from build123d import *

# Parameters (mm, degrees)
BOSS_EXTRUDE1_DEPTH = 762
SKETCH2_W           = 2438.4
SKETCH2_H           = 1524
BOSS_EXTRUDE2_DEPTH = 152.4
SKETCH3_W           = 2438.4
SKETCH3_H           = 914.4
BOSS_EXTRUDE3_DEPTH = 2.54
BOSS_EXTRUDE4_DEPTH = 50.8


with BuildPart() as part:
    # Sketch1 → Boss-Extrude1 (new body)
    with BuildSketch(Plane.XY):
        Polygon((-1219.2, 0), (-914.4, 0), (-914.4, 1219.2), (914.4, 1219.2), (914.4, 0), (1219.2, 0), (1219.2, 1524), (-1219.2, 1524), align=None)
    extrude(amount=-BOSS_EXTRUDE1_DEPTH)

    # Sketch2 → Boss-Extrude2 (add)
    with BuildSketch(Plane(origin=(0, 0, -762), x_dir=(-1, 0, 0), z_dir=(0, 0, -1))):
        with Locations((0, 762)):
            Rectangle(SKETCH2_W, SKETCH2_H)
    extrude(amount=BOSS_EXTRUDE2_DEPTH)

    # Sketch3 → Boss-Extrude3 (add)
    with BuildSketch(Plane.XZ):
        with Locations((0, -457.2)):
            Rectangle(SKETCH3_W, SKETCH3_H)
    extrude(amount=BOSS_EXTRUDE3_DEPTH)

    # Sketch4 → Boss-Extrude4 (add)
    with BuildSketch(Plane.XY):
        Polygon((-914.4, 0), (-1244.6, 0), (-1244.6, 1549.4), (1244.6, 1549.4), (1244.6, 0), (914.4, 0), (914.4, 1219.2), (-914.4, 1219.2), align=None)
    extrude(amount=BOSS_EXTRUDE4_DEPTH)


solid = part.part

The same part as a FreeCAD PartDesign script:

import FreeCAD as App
import Part
import Sketcher
Q = App.Units.Quantity

doc = App.newDocument("Part")
body = doc.addObject("PartDesign::Body", "Body")

# Sketch on XY plane
sketch1 = doc.addObject("Sketcher::SketchObject", "Sketch")
body.addObject(sketch1)
sketch1.AttachmentSupport = (doc.XY_Plane, [""])
sketch1.MapMode = "FlatFace"
sketch1.addGeometry(Part.LineSegment(App.Vector(-1219.2, 0, 0), App.Vector(-914.4, 0, 0)), False)
sketch1.addGeometry(Part.LineSegment(App.Vector(-914.4, 0, 0), App.Vector(-914.4, 1219.2, 0)), False)
sketch1.addGeometry(Part.LineSegment(App.Vector(-914.4, 1219.2, 0), App.Vector(914.4, 1219.2, 0)), False)
sketch1.addGeometry(Part.LineSegment(App.Vector(914.4, 1219.2, 0), App.Vector(914.4, 0, 0)), False)
sketch1.addGeometry(Part.LineSegment(App.Vector(914.4, 0, 0), App.Vector(1219.2, 0, 0)), False)
sketch1.addGeometry(Part.LineSegment(App.Vector(1219.2, 0, 0), App.Vector(1219.2, 1524, 0)), False)
sketch1.addGeometry(Part.LineSegment(App.Vector(1219.2, 1524, 0), App.Vector(-1219.2, 1524, 0)), False)
sketch1.addGeometry(Part.LineSegment(App.Vector(-1219.2, 1524, 0), App.Vector(-1219.2, 0, 0)), False)
sketch1.addConstraint(Sketcher.Constraint("Coincident", 0, 2, 1, 1))
sketch1.addConstraint(Sketcher.Constraint("Coincident", 1, 2, 2, 1))
sketch1.addConstraint(Sketcher.Constraint("Coincident", 2, 2, 3, 1))
sketch1.addConstraint(Sketcher.Constraint("Coincident", 3, 2, 4, 1))
sketch1.addConstraint(Sketcher.Constraint("Coincident", 4, 2, 5, 1))
sketch1.addConstraint(Sketcher.Constraint("Coincident", 5, 2, 6, 1))
sketch1.addConstraint(Sketcher.Constraint("Coincident", 6, 2, 7, 1))
sketch1.addConstraint(Sketcher.Constraint("Coincident", 7, 2, 0, 1))
sketch1.addConstraint(Sketcher.Constraint("Horizontal", 0))
sketch1.addConstraint(Sketcher.Constraint("Vertical", 1))
sketch1.addConstraint(Sketcher.Constraint("Horizontal", 2))
sketch1.addConstraint(Sketcher.Constraint("Vertical", 3))
sketch1.addConstraint(Sketcher.Constraint("Horizontal", 4))
sketch1.addConstraint(Sketcher.Constraint("Vertical", 5))
sketch1.addConstraint(Sketcher.Constraint("Horizontal", 6))
sketch1.addConstraint(Sketcher.Constraint("Vertical", 7))
sketch1.addConstraint(Sketcher.Constraint("Symmetric", 0, 2, 3, 2, -1, 1))
sketch1.addConstraint(Sketcher.Constraint("Symmetric", 4, 2, 7, 2, -2))
sketch1.addConstraint(Sketcher.Constraint("DistanceX", 0, 1, 0, 2, Q("12 in")))
sketch1.addConstraint(Sketcher.Constraint("DistanceX", 2, 1, 2, 2, Q("72 in")))
sketch1.addConstraint(Sketcher.Constraint("DistanceY", 1, 1, 1, 2, Q("48 in")))
sketch1.addConstraint(Sketcher.Constraint("DistanceY", 5, 1, 5, 2, Q("60 in")))
pad1 = doc.addObject("PartDesign::Pad", "Pad")
body.addObject(pad1)
pad1.Profile = sketch1
pad1.Length = Q("30 in")
pad1.Reversed = True

# Sketch on XY plane
sketch2 = doc.addObject("Sketcher::SketchObject", "Sketch001")
body.addObject(sketch2)
sketch2.AttachmentSupport = (doc.XY_Plane, [""])
sketch2.MapMode = "FlatFace"
sketch2.AttachmentOffset = App.Placement(App.Vector(0, 0, -30 * 25.4), App.Rotation())
sketch2.addGeometry(Part.LineSegment(App.Vector(1219.2, 1524, 0), App.Vector(1219.2, 0, 0)), False)
sketch2.addGeometry(Part.LineSegment(App.Vector(1219.2, 0, 0), App.Vector(-1219.2, 0, 0)), False)
sketch2.addGeometry(Part.LineSegment(App.Vector(-1219.2, 0, 0), App.Vector(-1219.2, 1524, 0)), False)
sketch2.addGeometry(Part.LineSegment(App.Vector(-1219.2, 1524, 0), App.Vector(1219.2, 1524, 0)), False)
sketch2.addConstraint(Sketcher.Constraint("Coincident", 0, 2, 1, 1))
sketch2.addConstraint(Sketcher.Constraint("Coincident", 1, 2, 2, 1))
sketch2.addConstraint(Sketcher.Constraint("Coincident", 2, 2, 3, 1))
sketch2.addConstraint(Sketcher.Constraint("Coincident", 3, 2, 0, 1))
sketch2.addConstraint(Sketcher.Constraint("Vertical", 0))
sketch2.addConstraint(Sketcher.Constraint("Horizontal", 1))
sketch2.addConstraint(Sketcher.Constraint("Vertical", 2))
sketch2.addConstraint(Sketcher.Constraint("Horizontal", 3))
sketch2.addConstraint(Sketcher.Constraint("Symmetric", 0, 2, 1, 2, -1, 1))
sketch2.addConstraint(Sketcher.Constraint("DistanceX", 1, 2, 1, 1, Q("96 in")))
sketch2.addConstraint(Sketcher.Constraint("DistanceY", 0, 2, 0, 1, Q("60 in")))
pad2 = doc.addObject("PartDesign::Pad", "Pad001")
body.addObject(pad2)
pad2.Profile = sketch2
pad2.Length = Q("6 in")
pad2.Reversed = True

# Sketch on XZ plane
sketch3 = doc.addObject("Sketcher::SketchObject", "Sketch002")
body.addObject(sketch3)
sketch3.AttachmentSupport = (doc.XZ_Plane, [""])
sketch3.MapMode = "FlatFace"
sketch3.addGeometry(Part.LineSegment(App.Vector(-1219.2, 0, 0), App.Vector(-1219.2, -914.4, 0)), False)
sketch3.addGeometry(Part.LineSegment(App.Vector(-1219.2, -914.4, 0), App.Vector(1219.2, -914.4, 0)), False)
sketch3.addGeometry(Part.LineSegment(App.Vector(1219.2, -914.4, 0), App.Vector(1219.2, 0, 0)), False)
sketch3.addGeometry(Part.LineSegment(App.Vector(1219.2, 0, 0), App.Vector(-1219.2, 0, 0)), False)
sketch3.addConstraint(Sketcher.Constraint("Coincident", 0, 2, 1, 1))
sketch3.addConstraint(Sketcher.Constraint("Coincident", 1, 2, 2, 1))
sketch3.addConstraint(Sketcher.Constraint("Coincident", 2, 2, 3, 1))
sketch3.addConstraint(Sketcher.Constraint("Coincident", 3, 2, 0, 1))
sketch3.addConstraint(Sketcher.Constraint("Vertical", 0))
sketch3.addConstraint(Sketcher.Constraint("Horizontal", 1))
sketch3.addConstraint(Sketcher.Constraint("Vertical", 2))
sketch3.addConstraint(Sketcher.Constraint("Horizontal", 3))
sketch3.addConstraint(Sketcher.Constraint("Symmetric", 2, 2, 3, 2, -1, 1))
sketch3.addConstraint(Sketcher.Constraint("DistanceX", 1, 1, 1, 2, Q("96 in")))
sketch3.addConstraint(Sketcher.Constraint("DistanceY", 0, 2, 0, 1, Q("36 in")))
pad3 = doc.addObject("PartDesign::Pad", "Pad002")
body.addObject(pad3)
pad3.Profile = sketch3
pad3.Length = Q("0.1 in")

# Sketch on XY plane
sketch4 = doc.addObject("Sketcher::SketchObject", "Sketch003")
body.addObject(sketch4)
sketch4.AttachmentSupport = (doc.XY_Plane, [""])
sketch4.MapMode = "FlatFace"
sketch4.addGeometry(Part.LineSegment(App.Vector(-1244.6, 0, 0), App.Vector(-914.4, 0, 0)), False)
sketch4.addGeometry(Part.LineSegment(App.Vector(-914.4, 0, 0), App.Vector(-914.4, 1219.2, 0)), False)
sketch4.addGeometry(Part.LineSegment(App.Vector(-914.4, 1219.2, 0), App.Vector(914.4, 1219.2, 0)), False)
sketch4.addGeometry(Part.LineSegment(App.Vector(914.4, 1219.2, 0), App.Vector(914.4, 0, 0)), False)
sketch4.addGeometry(Part.LineSegment(App.Vector(914.4, 0, 0), App.Vector(1244.6, 0, 0)), False)
sketch4.addGeometry(Part.LineSegment(App.Vector(1244.6, 0, 0), App.Vector(1244.6, 1549.4, 0)), False)
sketch4.addGeometry(Part.LineSegment(App.Vector(1244.6, 1549.4, 0), App.Vector(-1244.6, 1549.4, 0)), False)
sketch4.addGeometry(Part.LineSegment(App.Vector(-1244.6, 1549.4, 0), App.Vector(-1244.6, 0, 0)), False)
sketch4.addConstraint(Sketcher.Constraint("Coincident", 0, 2, 1, 1))
sketch4.addConstraint(Sketcher.Constraint("Coincident", 1, 2, 2, 1))
sketch4.addConstraint(Sketcher.Constraint("Coincident", 2, 2, 3, 1))
sketch4.addConstraint(Sketcher.Constraint("Coincident", 3, 2, 4, 1))
sketch4.addConstraint(Sketcher.Constraint("Coincident", 4, 2, 5, 1))
sketch4.addConstraint(Sketcher.Constraint("Coincident", 5, 2, 6, 1))
sketch4.addConstraint(Sketcher.Constraint("Coincident", 6, 2, 7, 1))
sketch4.addConstraint(Sketcher.Constraint("Coincident", 7, 2, 0, 1))
sketch4.addConstraint(Sketcher.Constraint("Horizontal", 0))
sketch4.addConstraint(Sketcher.Constraint("Vertical", 1))
sketch4.addConstraint(Sketcher.Constraint("Horizontal", 2))
sketch4.addConstraint(Sketcher.Constraint("Vertical", 3))
sketch4.addConstraint(Sketcher.Constraint("Horizontal", 4))
sketch4.addConstraint(Sketcher.Constraint("Vertical", 5))
sketch4.addConstraint(Sketcher.Constraint("Horizontal", 6))
sketch4.addConstraint(Sketcher.Constraint("Vertical", 7))
sketch4.addConstraint(Sketcher.Constraint("Symmetric", 0, 2, 3, 2, -1, 1))
sketch4.addConstraint(Sketcher.Constraint("Symmetric", 4, 2, 7, 2, -2))
sketch4.addConstraint(Sketcher.Constraint("DistanceX", 0, 1, 0, 2, Q("13 in")))
sketch4.addConstraint(Sketcher.Constraint("DistanceX", 2, 1, 2, 2, Q("72 in")))
sketch4.addConstraint(Sketcher.Constraint("DistanceY", 1, 1, 1, 2, Q("48 in")))
sketch4.addConstraint(Sketcher.Constraint("DistanceY", 5, 1, 5, 2, Q("61 in")))
pad4 = doc.addObject("PartDesign::Pad", "Pad003")
body.addObject(pad4)
pad4.Profile = sketch4
pad4.Length = Q("2 in")

doc.recompute()
